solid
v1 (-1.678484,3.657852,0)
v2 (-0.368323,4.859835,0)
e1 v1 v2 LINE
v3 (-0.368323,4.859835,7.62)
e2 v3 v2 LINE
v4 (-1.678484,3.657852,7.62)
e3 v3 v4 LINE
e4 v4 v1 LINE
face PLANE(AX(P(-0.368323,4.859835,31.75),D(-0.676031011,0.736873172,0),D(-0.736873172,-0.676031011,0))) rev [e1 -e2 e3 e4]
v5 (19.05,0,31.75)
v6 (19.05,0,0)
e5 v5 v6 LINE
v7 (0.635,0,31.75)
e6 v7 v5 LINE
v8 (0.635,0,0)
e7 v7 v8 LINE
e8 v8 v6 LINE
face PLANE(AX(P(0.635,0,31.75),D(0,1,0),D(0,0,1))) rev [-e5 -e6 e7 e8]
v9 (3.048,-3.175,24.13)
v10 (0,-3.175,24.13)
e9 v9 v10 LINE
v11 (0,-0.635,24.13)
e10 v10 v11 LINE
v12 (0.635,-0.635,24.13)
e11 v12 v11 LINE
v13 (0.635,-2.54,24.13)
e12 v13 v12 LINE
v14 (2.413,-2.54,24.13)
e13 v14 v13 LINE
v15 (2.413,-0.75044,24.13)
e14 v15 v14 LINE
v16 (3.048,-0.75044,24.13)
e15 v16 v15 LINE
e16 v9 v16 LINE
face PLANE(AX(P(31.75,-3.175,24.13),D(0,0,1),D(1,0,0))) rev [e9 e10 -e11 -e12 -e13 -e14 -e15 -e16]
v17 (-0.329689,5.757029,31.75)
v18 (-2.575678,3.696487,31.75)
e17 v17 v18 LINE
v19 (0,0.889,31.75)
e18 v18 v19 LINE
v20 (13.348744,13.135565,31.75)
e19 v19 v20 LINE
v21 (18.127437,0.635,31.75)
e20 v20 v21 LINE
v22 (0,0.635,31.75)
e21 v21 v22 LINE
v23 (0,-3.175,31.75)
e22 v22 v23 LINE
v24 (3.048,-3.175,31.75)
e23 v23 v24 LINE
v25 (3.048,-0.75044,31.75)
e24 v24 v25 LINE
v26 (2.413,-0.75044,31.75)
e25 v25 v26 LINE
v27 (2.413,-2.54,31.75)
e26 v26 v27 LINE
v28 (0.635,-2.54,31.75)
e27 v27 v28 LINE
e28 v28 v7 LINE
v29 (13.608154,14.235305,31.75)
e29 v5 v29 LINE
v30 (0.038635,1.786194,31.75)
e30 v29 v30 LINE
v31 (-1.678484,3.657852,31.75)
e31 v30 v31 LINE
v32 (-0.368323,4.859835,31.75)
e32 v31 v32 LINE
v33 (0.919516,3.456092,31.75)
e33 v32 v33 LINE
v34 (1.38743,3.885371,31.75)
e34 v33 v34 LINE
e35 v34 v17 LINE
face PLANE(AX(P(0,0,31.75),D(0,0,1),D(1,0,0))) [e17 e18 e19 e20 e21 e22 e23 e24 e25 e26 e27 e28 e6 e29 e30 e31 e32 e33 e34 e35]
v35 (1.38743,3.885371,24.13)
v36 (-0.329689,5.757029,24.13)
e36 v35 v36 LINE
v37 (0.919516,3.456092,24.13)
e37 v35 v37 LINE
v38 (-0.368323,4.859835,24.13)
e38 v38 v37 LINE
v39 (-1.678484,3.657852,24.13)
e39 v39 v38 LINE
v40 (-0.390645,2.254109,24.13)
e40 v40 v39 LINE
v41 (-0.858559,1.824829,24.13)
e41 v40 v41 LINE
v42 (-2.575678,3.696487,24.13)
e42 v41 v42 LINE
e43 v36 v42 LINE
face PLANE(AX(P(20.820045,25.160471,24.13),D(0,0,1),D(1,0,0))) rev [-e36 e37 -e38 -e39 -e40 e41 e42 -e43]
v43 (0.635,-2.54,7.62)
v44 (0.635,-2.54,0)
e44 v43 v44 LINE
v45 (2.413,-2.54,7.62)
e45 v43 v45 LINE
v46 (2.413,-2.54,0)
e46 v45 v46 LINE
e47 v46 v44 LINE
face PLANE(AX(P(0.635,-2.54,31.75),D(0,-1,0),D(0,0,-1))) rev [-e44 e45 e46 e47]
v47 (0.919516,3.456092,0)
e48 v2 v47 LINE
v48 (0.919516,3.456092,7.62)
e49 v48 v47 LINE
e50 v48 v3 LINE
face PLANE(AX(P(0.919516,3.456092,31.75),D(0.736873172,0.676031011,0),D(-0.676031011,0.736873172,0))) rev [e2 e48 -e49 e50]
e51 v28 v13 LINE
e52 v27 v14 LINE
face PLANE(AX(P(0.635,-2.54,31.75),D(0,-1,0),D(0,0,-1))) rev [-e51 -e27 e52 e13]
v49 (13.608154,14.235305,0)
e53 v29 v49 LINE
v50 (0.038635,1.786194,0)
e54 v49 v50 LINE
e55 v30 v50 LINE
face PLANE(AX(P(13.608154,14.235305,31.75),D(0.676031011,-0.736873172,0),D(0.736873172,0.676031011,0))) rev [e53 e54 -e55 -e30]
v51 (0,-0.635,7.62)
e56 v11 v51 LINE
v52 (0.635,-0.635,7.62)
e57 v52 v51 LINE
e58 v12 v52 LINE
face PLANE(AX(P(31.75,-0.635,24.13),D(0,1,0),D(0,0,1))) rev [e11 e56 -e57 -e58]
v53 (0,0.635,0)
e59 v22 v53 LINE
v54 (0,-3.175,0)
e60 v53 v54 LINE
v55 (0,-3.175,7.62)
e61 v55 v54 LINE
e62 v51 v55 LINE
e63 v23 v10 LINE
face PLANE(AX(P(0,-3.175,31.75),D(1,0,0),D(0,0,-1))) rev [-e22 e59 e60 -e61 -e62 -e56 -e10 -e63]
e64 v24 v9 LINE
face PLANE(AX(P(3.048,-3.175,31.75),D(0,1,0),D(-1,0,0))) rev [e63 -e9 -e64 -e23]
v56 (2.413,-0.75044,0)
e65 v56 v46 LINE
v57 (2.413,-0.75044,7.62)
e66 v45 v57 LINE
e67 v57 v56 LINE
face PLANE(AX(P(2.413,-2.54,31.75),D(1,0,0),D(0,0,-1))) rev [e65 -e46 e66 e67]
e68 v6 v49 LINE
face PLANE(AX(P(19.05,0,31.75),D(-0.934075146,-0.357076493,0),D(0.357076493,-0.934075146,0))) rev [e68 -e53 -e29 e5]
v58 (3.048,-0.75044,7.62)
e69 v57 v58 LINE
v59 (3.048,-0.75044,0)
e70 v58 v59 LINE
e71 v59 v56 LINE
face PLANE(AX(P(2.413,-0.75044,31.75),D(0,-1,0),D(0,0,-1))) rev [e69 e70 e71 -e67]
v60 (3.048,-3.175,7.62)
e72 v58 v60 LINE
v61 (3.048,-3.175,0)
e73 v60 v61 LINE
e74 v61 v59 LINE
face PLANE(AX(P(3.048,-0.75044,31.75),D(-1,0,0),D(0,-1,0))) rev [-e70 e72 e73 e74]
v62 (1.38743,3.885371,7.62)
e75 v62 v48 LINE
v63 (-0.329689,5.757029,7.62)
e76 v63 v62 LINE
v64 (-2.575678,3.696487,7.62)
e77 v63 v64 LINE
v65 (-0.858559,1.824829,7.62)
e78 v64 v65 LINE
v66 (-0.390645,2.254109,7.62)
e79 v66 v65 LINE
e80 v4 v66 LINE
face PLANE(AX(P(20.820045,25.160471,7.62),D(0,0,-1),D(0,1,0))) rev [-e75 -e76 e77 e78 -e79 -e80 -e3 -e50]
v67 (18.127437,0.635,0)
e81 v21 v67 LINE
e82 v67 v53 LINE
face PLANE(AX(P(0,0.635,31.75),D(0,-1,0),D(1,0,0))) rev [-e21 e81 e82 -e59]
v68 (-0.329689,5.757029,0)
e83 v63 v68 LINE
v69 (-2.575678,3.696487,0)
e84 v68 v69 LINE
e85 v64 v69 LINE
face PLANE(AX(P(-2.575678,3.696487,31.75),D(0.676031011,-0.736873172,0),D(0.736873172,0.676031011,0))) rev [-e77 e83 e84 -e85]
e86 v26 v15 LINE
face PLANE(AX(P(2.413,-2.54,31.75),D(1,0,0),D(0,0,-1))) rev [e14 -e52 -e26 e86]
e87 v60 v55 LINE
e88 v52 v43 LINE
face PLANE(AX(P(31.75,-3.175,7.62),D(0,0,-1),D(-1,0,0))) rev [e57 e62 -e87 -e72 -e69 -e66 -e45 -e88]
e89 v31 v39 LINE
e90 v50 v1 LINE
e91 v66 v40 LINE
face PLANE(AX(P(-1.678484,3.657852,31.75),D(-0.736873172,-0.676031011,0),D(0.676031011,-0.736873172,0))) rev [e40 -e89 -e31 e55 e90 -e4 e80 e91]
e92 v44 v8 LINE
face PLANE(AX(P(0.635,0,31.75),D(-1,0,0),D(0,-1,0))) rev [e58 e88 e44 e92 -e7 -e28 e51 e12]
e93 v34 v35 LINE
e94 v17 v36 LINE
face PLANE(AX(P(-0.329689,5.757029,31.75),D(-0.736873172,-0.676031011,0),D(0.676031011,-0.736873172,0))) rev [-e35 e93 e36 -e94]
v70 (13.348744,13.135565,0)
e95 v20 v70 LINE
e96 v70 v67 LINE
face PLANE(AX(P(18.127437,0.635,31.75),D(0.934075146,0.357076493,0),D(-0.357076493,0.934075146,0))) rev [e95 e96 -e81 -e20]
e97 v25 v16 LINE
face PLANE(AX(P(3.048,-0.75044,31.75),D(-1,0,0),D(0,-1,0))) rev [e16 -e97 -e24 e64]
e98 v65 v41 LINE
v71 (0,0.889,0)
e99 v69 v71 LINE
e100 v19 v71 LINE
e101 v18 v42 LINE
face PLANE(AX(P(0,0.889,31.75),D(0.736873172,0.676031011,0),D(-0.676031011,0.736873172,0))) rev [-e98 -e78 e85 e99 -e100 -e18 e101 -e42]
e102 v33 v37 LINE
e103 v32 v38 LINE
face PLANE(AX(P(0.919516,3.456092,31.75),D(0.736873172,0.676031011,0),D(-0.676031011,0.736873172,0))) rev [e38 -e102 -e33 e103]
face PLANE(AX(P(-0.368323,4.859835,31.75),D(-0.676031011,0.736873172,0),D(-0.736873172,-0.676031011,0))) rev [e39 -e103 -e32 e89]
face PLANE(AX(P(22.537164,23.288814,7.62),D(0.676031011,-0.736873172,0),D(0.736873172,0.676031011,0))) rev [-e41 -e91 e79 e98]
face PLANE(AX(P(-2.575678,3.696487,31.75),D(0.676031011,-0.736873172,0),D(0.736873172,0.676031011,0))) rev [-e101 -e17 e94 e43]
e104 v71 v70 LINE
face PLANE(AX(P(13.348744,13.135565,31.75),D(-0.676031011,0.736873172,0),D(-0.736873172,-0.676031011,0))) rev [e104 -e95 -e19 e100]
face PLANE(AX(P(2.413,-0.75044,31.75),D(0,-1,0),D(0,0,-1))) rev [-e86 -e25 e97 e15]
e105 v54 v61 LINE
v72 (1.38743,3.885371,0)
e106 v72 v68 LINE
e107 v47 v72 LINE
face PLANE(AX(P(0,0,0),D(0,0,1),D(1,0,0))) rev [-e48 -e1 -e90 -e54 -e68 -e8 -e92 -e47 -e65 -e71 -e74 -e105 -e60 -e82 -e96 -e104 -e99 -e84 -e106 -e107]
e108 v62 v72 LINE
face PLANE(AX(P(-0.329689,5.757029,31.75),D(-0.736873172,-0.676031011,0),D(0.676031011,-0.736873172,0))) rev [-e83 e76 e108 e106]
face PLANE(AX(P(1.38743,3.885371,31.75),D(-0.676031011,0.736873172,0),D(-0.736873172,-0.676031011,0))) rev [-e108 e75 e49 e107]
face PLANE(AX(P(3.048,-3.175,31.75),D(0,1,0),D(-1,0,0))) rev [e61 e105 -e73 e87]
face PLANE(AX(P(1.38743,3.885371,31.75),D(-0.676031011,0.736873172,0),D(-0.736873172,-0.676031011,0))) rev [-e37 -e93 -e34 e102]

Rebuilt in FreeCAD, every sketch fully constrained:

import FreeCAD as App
import Part
import Sketcher

V = App.Vector
Q = App.Units.Quantity


def add_polygon(sketch, points):
    """Adds a closed chain of lines whose ends are joined by coincident constraints."""
    first, n = sketch.GeometryCount, len(points)
    for a, b in zip(points, points[1:] + points[:1]):
        sketch.addGeometry(Part.LineSegment(App.Vector(*a, 0), App.Vector(*b, 0)), False)
    for i in range(n):
        sketch.addConstraint(Sketcher.Constraint("Coincident", first + i, 2, first + (i + 1) % n, 1))

doc = App.newDocument("Part")
body = doc.addObject("PartDesign::Body", "Body")

# Sketch on XY plane
sketch1 = doc.addObject("Sketcher::SketchObject", "Sketch")
body.addObject(sketch1)
sketch1.AttachmentSupport = (doc.XY_Plane, [""])
sketch1.MapMode = "FlatFace"
add_polygon(sketch1, [(2.4, -0.8), (2.4, -2.5), (0.6, -2.5), (0.6, 0), (19.1, 0), (13.6, 14.2), (0, 1.8), (-1.7, 3.7), (-0.4, 4.9), (0.9, 3.5), (1.4, 3.9), (-0.3, 5.8), (-2.6, 3.7), (0, 0.9), (13.3, 13.1), (18.1, 0.6), (0, 0.6), (0, -3.2), (3, -3.2), (3, -0.8)])  # lines 0-19
sketch1.addConstraint(Sketcher.Constraint("Vertical", 0))
sketch1.addConstraint(Sketcher.Constraint("Horizontal", 1))
sketch1.addConstraint(Sketcher.Constraint("Vertical", 2))
sketch1.addConstraint(Sketcher.Constraint("Horizontal", 3))
sketch1.addConstraint(Sketcher.Constraint("Horizontal", 15))
sketch1.addConstraint(Sketcher.Constraint("Vertical", 16))
sketch1.addConstraint(Sketcher.Constraint("Horizontal", 17))
sketch1.addConstraint(Sketcher.Constraint("Vertical", 18))
sketch1.addConstraint(Sketcher.Constraint("Horizontal", 19))
sketch1.addConstraint(Sketcher.Constraint("PointOnObject", 2, 2, -1))
sketch1.addConstraint(Sketcher.Constraint("PointOnObject", 12, 2, -2))
sketch1.addConstraint(Sketcher.Constraint("PointOnObject", 15, 2, -2))
sketch1.addConstraint(Sketcher.Constraint("Perpendicular", 5, 6))
sketch1.addConstraint(Sketcher.Constraint("Perpendicular", 6, 7))
sketch1.addConstraint(Sketcher.Constraint("Perpendicular", 7, 8))
sketch1.addConstraint(Sketcher.Constraint("Perpendicular", 8, 9))
sketch1.addConstraint(Sketcher.Constraint("Perpendicular", 9, 10))
sketch1.addConstraint(Sketcher.Constraint("Perpendicular", 10, 11))
sketch1.addConstraint(Sketcher.Constraint("Perpendicular", 11, 12))
sketch1.addConstraint(Sketcher.Constraint("Perpendicular", 12, 13))
sketch1.addConstraint(Sketcher.Constraint("Parallel", 4, 14))
sketch1.addConstraint(Sketcher.Constraint("Equal", 6, 10))
sketch1.addConstraint(Sketcher.Constraint("DistanceY", 2, 1, 2, 2, Q("0.1 in")))
sketch1.addConstraint(Sketcher.Constraint("Distance", 4, Q("0.6 in")))
sketch1.addConstraint(Sketcher.Constraint("Distance", 6, Q("0.1 in")))
sketch1.addConstraint(Sketcher.Constraint("DistanceX", 1, 2, 1, 1, Q("0.07 in")))
sketch1.addConstraint(Sketcher.Constraint("DistanceX", 17, 1, 17, 2, Q("0.12 in")))
sketch1.addConstraint(Sketcher.Constraint("DistanceY", 16, 2, 16, 1, Q("0.15 in")))
sketch1.addConstraint(Sketcher.Constraint("Distance", 7, Q("0.07 in")))
sketch1.addConstraint(Sketcher.Constraint("Distance", 11, Q("0.12 in")))
sketch1.addConstraint(Sketcher.Constraint("Distance", 12, Q("0.15 in")))
sketch1.addConstraint(Sketcher.Constraint("DistanceX", 3, 1, 3, 2, Q("0.725 in")))
sketch1.addConstraint(Sketcher.Constraint("DistanceX", 19, 2, 19, 1, Q("0.025 in")))
sketch1.addConstraint(Sketcher.Constraint("DistanceY", 15, 2, 12, 2, Q("0.01 in")))
sketch1.addConstraint(Sketcher.Constraint("Distance", 5, Q("0.725 in")))
sketch1.addConstraint(Sketcher.Constraint("Distance", 8, Q("0.075 in")))
sketch1.addConstraint(Sketcher.Constraint("Distance", 9, Q("0.025 in")))
sketch1.addConstraint(Sketcher.Constraint("DistanceY", -1, 1, 12, 2, Q("0.035 in")))
sketch1.addConstraint(Sketcher.Constraint("DistanceY", 0, 2, 0, 1, Q("1.78956 mm")))
sketch1.addConstraint(Sketcher.Constraint("Distance", 13, Q("18.115389 mm")))
pad1 = doc.addObject("PartDesign::Pad", "Pad")
body.addObject(pad1)
pad1.Profile = sketch1
pad1.Length = Q("1.25 in")

# Sketch on an angled plane
sketch2 = doc.addObject("Sketcher::SketchObject", "Sketch001")
body.addObject(sketch2)
sketch2.Placement = App.Placement(V(0.442855, 0.406289, 0), App.Rotation(V(0, 0, 1), V(-0.676031011, 0.736873172, 0), V(-0.736873172, -0.676031011, 0), "ZXY"))
add_polygon(sketch2, [(7.6, 4.5), (7.6, 1.9), (24.1, 1.9), (24.1, 4.5)])  # lines 0-3
sketch2.addConstraint(Sketcher.Constraint("Vertical", 0))
sketch2.addConstraint(Sketcher.Constraint("Horizontal", 1))
sketch2.addConstraint(Sketcher.Constraint("Vertical", 2))
sketch2.addConstraint(Sketcher.Constraint("Horizontal", 3))
sketch2.addConstraint(Sketcher.Constraint("DistanceY", 0, 2, 0, 1, Q("0.1 in")))
sketch2.addConstraint(Sketcher.Constraint("DistanceX", 1, 1, 1, 2, Q("0.65 in")))
sketch2.addConstraint(Sketcher.Constraint("DistanceX", -1, 1, 0, 2, Q("0.3 in")))
sketch2.addConstraint(Sketcher.Constraint("DistanceY", -1, 1, 0, 2, Q("1.92508 mm")))
pocket1 = doc.addObject("PartDesign::Pocket", "Pocket")
body.addObject(pocket1)
pocket1.Profile = sketch2
pocket1.Length = Q("1.25 in")

# Sketch on YZ plane
sketch3 = doc.addObject("Sketcher::SketchObject", "Sketch002")
body.addObject(sketch3)
sketch3.AttachmentSupport = (doc.YZ_Plane, [""])
sketch3.MapMode = "FlatFace"
add_polygon(sketch3, [(-0.6, 7.6), (-3.2, 7.6), (-3.2, 24.1), (-0.6, 24.1)])  # lines 0-3
sketch3.addConstraint(Sketcher.Constraint("Horizontal", 0))
sketch3.addConstraint(Sketcher.Constraint("Vertical", 1))
sketch3.addConstraint(Sketcher.Constraint("Horizontal", 2))
sketch3.addConstraint(Sketcher.Constraint("Vertical", 3))
sketch3.addConstraint(Sketcher.Constraint("DistanceX", 0, 2, 0, 1, Q("0.1 in")))
sketch3.addConstraint(Sketcher.Constraint("DistanceY", 1, 1, 1, 2, Q("0.65 in")))
sketch3.addConstraint(Sketcher.Constraint("DistanceY", -1, 1, 0, 2, Q("0.3 in")))
sketch3.addConstraint(Sketcher.Constraint("DistanceX", 0, 2, -1, 1, Q("0.125 in")))
pocket2 = doc.addObject("PartDesign::Pocket", "Pocket001")
body.addObject(pocket2)
pocket2.Profile = sketch3
pocket2.Length = Q("1.25 in")
pocket2.Reversed = True

doc.recompute()
